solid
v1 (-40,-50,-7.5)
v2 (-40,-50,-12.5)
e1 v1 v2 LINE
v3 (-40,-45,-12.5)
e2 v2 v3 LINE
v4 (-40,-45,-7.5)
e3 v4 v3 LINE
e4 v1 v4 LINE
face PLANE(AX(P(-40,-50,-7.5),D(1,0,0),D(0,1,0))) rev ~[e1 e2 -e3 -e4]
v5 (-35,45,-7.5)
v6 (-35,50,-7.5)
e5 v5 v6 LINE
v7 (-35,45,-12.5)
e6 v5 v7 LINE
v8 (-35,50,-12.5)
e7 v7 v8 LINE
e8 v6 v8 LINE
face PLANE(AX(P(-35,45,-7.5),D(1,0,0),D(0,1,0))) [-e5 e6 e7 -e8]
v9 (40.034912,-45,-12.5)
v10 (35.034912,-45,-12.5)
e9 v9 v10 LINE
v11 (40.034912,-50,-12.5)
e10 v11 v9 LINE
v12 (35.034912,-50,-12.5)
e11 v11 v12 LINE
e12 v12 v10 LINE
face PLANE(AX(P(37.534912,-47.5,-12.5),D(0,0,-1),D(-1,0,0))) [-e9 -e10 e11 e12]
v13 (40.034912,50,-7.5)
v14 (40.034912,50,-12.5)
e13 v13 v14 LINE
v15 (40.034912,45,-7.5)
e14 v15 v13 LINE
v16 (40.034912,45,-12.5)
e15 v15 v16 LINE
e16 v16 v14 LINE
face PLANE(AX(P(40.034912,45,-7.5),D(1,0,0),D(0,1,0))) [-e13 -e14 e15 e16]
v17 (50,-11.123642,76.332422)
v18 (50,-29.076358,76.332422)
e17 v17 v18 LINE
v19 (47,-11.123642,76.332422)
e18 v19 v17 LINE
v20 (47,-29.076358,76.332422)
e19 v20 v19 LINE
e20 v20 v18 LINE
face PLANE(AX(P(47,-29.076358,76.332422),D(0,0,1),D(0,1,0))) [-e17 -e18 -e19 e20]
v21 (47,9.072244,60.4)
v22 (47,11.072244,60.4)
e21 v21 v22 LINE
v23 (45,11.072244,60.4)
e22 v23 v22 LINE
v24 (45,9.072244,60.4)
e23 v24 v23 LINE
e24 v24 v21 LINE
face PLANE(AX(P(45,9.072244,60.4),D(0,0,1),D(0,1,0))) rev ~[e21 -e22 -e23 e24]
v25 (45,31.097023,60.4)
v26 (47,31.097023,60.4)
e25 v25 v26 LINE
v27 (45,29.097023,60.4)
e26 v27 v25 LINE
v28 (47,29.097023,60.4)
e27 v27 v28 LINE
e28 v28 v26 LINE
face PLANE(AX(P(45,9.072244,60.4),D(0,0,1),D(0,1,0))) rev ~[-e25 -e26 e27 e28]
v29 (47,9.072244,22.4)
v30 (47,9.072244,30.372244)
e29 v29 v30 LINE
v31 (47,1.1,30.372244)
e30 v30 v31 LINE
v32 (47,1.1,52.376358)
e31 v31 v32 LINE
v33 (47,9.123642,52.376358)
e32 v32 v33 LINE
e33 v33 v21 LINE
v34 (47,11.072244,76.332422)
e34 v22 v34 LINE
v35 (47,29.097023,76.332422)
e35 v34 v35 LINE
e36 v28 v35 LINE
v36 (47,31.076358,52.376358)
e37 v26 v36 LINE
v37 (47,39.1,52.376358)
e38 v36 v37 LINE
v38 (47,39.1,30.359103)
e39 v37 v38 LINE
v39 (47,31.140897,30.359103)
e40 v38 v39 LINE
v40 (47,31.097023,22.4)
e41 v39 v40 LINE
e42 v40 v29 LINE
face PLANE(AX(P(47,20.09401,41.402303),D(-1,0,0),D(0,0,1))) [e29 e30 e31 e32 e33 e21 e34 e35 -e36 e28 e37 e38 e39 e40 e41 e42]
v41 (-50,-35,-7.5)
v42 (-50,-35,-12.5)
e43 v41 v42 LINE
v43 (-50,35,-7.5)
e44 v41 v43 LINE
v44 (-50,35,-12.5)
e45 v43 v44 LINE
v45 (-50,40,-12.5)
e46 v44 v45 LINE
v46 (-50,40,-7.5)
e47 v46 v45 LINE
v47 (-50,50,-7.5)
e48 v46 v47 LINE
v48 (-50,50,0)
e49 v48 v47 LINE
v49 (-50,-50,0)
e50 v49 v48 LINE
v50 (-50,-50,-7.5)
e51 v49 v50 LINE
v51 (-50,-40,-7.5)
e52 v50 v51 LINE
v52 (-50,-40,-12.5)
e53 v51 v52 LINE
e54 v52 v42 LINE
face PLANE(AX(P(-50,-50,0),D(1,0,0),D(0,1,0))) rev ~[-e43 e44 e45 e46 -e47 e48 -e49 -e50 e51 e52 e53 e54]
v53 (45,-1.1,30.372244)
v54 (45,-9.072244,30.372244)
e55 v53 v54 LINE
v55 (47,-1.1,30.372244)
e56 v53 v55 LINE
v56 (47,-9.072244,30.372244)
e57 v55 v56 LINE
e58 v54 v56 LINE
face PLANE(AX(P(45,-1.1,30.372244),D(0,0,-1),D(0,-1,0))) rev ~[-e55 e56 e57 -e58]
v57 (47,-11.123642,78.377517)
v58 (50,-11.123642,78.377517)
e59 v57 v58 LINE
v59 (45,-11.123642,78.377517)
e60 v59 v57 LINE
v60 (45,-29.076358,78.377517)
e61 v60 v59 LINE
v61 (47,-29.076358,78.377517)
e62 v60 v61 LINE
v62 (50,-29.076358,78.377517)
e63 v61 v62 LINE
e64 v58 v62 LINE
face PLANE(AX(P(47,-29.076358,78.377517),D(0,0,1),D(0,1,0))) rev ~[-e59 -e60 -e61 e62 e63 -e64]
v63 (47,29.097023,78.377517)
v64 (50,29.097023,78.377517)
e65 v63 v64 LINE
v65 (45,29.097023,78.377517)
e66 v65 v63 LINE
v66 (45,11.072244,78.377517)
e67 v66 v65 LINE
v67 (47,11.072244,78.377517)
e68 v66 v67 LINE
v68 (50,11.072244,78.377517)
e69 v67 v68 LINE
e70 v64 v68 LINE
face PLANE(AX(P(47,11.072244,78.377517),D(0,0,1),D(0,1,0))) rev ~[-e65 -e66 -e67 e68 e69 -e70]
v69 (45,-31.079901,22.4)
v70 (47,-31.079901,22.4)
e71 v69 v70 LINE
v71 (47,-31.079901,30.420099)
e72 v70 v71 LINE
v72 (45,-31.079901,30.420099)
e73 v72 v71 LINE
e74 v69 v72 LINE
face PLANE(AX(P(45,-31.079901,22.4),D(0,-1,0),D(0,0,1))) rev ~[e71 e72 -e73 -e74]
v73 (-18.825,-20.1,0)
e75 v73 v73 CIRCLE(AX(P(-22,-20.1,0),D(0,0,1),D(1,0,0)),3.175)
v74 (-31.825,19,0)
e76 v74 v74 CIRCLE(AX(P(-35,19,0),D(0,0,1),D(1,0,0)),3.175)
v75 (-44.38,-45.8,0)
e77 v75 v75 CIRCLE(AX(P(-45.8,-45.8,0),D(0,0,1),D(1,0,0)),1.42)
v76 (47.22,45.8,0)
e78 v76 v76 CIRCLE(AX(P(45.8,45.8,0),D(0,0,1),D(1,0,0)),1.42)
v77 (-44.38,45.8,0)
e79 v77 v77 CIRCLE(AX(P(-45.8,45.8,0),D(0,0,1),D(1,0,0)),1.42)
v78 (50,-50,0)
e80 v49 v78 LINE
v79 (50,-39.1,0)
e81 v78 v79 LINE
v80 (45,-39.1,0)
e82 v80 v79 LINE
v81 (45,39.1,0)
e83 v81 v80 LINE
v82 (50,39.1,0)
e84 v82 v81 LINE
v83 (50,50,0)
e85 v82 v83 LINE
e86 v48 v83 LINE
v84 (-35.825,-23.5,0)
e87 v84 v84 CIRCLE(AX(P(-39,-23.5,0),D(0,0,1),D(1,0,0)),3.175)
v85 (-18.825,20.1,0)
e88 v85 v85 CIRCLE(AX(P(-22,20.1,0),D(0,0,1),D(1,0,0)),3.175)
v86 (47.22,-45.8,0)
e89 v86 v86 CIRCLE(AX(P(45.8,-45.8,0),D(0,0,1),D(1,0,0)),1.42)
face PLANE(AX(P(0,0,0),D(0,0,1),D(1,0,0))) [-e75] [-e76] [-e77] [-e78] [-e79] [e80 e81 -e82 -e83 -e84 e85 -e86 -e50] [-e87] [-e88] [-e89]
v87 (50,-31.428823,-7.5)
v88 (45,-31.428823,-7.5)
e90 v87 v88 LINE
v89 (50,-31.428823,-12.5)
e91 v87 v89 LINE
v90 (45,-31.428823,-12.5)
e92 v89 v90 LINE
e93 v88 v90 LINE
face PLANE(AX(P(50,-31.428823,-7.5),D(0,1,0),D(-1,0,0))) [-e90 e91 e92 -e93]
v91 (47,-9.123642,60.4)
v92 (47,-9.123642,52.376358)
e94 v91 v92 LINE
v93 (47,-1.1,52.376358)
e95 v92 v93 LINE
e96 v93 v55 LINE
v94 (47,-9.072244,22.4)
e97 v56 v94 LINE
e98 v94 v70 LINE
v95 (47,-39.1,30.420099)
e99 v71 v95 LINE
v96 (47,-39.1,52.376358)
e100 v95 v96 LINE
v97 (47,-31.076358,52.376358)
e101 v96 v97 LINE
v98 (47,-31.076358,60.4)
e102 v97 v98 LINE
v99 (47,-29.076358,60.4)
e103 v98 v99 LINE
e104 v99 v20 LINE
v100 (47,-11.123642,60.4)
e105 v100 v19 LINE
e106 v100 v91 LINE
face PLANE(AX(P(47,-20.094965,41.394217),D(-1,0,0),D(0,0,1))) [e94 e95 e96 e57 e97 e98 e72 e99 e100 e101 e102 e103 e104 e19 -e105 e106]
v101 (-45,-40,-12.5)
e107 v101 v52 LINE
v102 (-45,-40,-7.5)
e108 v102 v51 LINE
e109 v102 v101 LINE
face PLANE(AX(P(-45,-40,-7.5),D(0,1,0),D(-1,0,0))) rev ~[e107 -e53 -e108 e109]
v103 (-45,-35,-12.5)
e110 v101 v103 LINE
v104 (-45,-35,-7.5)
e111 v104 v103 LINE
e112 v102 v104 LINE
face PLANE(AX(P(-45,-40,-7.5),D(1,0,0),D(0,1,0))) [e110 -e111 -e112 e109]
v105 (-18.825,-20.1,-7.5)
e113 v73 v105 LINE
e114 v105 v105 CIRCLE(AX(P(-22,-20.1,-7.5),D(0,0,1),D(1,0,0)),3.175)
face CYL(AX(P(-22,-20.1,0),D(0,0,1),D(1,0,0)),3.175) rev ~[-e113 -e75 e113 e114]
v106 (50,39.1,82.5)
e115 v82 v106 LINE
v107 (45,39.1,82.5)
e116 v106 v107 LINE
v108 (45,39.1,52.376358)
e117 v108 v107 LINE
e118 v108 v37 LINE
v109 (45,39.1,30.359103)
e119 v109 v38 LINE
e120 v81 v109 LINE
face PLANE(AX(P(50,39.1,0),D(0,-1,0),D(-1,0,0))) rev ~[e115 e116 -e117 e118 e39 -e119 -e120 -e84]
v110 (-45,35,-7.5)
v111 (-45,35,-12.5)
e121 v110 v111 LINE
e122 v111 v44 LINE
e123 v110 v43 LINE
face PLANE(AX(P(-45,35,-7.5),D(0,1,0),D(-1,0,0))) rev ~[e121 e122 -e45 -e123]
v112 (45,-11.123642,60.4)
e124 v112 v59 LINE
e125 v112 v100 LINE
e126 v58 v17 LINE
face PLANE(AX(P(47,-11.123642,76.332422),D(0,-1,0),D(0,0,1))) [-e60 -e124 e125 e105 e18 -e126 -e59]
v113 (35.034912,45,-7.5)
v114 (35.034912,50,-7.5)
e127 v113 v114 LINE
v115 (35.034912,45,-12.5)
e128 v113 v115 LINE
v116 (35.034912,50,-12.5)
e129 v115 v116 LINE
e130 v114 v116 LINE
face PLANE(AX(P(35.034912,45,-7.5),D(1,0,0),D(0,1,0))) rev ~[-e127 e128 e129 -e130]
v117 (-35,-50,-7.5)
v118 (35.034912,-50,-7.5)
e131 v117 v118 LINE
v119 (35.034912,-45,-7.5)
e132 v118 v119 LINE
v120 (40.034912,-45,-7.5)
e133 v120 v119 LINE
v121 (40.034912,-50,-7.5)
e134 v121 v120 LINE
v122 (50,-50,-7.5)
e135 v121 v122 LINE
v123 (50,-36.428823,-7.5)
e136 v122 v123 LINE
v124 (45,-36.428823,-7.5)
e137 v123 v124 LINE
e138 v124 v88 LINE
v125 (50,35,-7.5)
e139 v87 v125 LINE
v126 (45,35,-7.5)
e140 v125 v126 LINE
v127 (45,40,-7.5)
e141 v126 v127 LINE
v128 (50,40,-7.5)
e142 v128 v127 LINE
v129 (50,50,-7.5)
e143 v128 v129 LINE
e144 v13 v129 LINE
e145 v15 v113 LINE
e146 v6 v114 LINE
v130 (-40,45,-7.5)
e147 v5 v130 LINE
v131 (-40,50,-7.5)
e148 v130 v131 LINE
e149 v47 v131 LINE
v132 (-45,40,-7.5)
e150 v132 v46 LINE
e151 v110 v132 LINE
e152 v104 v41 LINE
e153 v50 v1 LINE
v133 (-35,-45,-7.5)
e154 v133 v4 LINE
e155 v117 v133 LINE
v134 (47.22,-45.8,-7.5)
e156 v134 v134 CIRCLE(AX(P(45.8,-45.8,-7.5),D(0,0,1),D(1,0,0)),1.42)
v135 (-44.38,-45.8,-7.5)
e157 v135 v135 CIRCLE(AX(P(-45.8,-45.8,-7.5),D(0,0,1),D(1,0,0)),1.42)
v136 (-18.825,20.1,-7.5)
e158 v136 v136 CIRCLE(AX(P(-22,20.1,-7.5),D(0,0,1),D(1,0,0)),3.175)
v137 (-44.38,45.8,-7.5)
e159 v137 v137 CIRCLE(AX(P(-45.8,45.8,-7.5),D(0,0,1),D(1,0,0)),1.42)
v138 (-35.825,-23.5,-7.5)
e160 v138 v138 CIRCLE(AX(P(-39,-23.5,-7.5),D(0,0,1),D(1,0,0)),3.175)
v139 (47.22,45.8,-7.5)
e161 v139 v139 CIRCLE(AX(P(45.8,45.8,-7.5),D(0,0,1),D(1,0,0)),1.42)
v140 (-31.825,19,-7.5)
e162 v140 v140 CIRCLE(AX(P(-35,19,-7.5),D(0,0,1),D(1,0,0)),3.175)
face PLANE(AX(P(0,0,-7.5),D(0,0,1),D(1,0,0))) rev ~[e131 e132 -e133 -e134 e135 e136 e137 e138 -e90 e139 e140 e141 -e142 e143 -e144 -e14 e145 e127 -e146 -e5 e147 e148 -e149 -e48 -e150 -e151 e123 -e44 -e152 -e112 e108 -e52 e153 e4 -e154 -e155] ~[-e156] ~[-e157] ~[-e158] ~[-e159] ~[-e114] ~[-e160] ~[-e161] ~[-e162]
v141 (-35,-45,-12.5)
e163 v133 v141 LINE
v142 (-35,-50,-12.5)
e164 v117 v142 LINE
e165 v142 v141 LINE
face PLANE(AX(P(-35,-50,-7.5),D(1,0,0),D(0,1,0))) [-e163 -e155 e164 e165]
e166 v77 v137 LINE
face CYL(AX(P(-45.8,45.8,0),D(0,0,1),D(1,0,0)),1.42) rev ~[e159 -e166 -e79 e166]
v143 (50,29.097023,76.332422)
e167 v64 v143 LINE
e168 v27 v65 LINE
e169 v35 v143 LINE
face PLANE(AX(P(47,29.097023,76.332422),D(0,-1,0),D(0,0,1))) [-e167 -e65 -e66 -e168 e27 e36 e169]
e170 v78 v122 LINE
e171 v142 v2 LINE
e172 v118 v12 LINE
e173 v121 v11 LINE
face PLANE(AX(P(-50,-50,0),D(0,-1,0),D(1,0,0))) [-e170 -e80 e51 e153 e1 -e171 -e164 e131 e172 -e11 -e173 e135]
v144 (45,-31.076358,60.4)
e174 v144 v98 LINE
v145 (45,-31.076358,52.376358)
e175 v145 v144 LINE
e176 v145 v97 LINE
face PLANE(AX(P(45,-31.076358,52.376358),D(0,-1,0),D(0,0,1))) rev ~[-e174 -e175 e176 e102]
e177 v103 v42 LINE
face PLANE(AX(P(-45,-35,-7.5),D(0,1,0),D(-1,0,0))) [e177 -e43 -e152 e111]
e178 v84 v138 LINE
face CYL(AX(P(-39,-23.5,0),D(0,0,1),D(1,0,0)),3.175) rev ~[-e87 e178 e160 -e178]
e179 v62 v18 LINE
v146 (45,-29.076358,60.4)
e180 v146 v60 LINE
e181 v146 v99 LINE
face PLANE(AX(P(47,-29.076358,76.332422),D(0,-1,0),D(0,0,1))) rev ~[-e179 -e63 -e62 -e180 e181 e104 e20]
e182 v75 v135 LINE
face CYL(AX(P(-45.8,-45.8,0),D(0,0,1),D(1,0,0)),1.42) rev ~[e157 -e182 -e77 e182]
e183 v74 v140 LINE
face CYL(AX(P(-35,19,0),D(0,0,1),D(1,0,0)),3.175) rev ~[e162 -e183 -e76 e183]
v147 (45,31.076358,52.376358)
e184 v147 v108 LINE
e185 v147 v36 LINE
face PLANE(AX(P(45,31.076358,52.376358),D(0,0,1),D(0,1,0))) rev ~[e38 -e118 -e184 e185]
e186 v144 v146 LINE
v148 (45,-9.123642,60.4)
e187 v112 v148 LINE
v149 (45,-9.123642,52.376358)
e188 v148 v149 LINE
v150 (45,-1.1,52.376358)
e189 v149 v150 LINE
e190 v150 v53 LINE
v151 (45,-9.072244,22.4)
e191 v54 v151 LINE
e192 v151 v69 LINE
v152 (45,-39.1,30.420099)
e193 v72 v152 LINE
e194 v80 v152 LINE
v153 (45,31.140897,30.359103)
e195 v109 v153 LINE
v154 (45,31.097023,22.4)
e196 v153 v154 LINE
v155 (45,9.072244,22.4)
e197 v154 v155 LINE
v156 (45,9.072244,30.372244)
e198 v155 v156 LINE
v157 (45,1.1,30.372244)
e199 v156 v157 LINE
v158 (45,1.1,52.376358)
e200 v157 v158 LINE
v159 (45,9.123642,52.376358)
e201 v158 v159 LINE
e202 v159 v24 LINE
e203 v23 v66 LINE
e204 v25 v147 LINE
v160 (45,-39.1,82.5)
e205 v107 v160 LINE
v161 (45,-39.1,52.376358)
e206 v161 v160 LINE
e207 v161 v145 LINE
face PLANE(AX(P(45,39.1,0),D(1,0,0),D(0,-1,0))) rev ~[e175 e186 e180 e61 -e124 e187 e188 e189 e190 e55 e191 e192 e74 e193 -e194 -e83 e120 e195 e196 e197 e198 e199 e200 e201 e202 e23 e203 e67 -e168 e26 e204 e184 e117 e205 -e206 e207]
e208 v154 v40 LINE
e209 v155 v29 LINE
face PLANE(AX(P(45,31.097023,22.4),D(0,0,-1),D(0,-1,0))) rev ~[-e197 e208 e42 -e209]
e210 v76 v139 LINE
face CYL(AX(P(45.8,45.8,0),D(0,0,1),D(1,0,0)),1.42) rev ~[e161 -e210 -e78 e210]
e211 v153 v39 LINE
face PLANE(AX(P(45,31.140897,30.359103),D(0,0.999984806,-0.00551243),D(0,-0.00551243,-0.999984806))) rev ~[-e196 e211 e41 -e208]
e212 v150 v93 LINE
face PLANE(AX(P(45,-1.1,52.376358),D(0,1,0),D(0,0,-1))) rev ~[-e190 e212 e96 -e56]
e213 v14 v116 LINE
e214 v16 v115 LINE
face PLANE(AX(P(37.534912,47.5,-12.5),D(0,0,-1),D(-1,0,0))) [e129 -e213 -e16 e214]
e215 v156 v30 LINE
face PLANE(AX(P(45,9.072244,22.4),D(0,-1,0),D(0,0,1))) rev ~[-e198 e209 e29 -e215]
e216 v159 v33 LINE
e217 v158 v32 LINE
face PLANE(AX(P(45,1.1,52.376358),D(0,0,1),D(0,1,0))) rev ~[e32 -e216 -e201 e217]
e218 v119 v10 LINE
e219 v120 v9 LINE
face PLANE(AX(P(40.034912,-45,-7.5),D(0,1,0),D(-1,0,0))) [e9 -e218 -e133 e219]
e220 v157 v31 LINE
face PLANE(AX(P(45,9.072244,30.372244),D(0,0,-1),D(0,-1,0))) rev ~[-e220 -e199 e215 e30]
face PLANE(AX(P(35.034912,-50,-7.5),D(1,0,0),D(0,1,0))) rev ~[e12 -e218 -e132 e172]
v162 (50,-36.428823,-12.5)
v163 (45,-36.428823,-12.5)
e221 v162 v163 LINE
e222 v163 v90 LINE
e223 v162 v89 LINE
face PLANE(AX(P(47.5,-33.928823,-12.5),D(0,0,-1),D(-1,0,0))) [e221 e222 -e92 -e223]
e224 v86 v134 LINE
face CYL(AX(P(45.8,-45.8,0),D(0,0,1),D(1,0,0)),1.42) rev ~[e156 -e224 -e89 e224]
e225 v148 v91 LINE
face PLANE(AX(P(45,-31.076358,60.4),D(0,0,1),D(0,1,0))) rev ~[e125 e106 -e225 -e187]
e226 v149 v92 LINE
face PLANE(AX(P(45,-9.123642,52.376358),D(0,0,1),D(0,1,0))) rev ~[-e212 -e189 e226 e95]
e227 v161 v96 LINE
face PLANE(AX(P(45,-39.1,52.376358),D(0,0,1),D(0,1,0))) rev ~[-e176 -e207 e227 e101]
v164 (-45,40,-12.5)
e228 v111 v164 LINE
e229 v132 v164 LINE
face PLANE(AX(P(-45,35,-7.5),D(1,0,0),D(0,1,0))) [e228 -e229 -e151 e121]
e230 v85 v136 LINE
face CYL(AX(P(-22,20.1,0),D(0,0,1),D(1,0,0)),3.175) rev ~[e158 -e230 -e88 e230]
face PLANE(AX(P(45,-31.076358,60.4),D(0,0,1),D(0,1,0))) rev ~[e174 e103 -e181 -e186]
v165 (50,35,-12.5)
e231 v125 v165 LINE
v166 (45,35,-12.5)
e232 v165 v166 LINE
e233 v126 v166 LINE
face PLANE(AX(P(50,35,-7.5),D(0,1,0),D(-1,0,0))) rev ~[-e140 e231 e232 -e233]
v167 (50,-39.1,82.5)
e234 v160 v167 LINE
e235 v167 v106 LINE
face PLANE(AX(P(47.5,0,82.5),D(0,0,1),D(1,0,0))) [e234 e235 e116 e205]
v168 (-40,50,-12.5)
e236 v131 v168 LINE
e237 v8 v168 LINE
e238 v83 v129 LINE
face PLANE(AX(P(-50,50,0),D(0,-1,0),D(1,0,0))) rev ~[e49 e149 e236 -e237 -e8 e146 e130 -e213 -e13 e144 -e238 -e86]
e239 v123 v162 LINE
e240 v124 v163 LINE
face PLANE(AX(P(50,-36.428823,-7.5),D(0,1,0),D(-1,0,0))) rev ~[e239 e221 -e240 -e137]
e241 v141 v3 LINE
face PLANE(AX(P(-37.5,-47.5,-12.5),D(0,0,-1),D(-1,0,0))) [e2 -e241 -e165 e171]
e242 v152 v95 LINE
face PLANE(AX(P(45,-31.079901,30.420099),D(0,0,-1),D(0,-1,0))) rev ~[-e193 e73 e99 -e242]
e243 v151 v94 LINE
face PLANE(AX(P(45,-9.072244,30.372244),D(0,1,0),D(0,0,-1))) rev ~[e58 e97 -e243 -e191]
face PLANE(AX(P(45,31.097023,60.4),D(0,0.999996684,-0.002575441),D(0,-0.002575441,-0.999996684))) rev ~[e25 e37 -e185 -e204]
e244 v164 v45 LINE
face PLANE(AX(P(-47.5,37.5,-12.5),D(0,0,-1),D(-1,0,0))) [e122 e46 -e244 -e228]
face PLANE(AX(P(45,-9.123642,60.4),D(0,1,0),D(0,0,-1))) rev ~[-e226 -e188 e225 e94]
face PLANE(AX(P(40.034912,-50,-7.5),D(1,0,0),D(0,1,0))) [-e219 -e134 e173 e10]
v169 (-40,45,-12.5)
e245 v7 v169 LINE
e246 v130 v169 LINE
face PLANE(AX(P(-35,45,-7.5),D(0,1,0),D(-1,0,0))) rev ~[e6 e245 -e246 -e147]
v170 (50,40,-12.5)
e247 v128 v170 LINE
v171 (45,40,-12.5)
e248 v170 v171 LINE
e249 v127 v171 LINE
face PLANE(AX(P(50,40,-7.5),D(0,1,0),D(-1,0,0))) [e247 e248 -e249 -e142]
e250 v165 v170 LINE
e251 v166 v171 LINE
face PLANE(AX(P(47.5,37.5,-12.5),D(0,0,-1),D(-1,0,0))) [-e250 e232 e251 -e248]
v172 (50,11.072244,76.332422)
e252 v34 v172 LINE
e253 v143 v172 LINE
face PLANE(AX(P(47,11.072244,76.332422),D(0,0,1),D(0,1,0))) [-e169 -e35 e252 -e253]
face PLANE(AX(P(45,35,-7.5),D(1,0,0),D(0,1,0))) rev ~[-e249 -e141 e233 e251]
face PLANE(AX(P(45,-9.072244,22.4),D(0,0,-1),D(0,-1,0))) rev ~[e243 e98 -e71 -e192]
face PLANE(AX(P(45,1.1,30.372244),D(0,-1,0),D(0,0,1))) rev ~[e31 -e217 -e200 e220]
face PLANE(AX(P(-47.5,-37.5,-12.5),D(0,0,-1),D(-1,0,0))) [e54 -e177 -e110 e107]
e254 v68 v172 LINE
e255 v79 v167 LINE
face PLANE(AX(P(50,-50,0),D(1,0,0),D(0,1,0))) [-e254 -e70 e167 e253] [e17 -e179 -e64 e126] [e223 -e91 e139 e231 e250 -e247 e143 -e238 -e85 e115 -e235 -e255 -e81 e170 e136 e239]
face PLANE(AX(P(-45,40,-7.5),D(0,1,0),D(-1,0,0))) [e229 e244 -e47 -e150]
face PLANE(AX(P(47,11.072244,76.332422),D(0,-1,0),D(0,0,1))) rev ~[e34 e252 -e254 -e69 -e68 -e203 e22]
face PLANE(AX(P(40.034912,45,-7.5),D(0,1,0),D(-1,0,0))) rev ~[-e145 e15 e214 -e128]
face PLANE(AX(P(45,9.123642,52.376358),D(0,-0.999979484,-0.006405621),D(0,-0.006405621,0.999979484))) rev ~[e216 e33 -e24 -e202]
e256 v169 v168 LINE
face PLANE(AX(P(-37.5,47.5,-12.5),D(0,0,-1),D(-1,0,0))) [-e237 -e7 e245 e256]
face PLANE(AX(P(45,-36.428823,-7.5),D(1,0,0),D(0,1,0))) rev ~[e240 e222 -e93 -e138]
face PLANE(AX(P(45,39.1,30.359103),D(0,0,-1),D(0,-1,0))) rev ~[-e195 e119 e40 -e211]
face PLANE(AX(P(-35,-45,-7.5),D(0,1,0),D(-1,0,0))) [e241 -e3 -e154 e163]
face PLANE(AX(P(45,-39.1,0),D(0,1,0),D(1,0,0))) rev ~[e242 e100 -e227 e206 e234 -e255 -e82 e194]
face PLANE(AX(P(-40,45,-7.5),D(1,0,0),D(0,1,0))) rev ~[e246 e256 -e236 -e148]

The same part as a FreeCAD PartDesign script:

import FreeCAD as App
import Part
import Sketcher

doc = App.newDocument("Part")
body = doc.addObject("PartDesign::Body", "Body")

# Sketch on XY plane
sketch1 = body.newObject("Sketcher::SketchObject", "Sketch")
sketch1.AttachmentSupport = (doc.getObject("XY_Plane"), [""])
sketch1.MapMode = "FlatFace"
sketch1.addGeometry(Part.LineSegment(App.Vector(-50, 50, 0), App.Vector(-50, -50, 0)), False)
sketch1.addGeometry(Part.LineSegment(App.Vector(-50, -50, 0), App.Vector(50, -50, 0)), False)
sketch1.addGeometry(Part.LineSegment(App.Vector(50, -50, 0), App.Vector(50, 50, 0)), False)
sketch1.addGeometry(Part.LineSegment(App.Vector(50, 50, 0), App.Vector(-50, 50, 0)), False)
sketch1.addConstraint(Sketcher.Constraint("Coincident", 0, 2, 1, 1))
sketch1.addConstraint(Sketcher.Constraint("Coincident", 1, 2, 2, 1))
sketch1.addConstraint(Sketcher.Constraint("Coincident", 2, 2, 3, 1))
sketch1.addConstraint(Sketcher.Constraint("Coincident", 3, 2, 0, 1))
sketch1.addConstraint(Sketcher.Constraint("Vertical", 0))
sketch1.addConstraint(Sketcher.Constraint("Horizontal", 1))
sketch1.addConstraint(Sketcher.Constraint("Vertical", 2))
sketch1.addConstraint(Sketcher.Constraint("Horizontal", 3))
sketch1.addConstraint(Sketcher.Constraint("Symmetric", 0, 2, 2, 2, -1, 1))
sketch1.addConstraint(Sketcher.Constraint("Equal", 3, 0))
sketch1.addConstraint(Sketcher.Constraint("DistanceX", 1, 1, 1, 2, 100.0))
pad1 = body.newObject("PartDesign::Pad", "Pad")
pad1.Profile = sketch1
pad1.Length = 7.5
pad1.Reversed = True

# Sketch on XY plane
sketch2 = body.newObject("Sketcher::SketchObject", "Sketch001")
sketch2.AttachmentSupport = (doc.getObject("XY_Plane"), [""])
sketch2.MapMode = "FlatFace"
sketch2.AttachmentOffset = App.Placement(App.Vector(0, 0, -7.5), App.Rotation())
sketch2.addGeometry(Part.LineSegment(App.Vector(40, 50, 0), App.Vector(40, 45, 0)), False)
sketch2.addGeometry(Part.LineSegment(App.Vector(40, 45, 0), App.Vector(35, 45, 0)), False)
sketch2.addGeometry(Part.LineSegment(App.Vector(35, 45, 0), App.Vector(35, 50, 0)), False)
sketch2.addGeometry(Part.LineSegment(App.Vector(35, 50, 0), App.Vector(40, 50, 0)), False)
sketch2.addGeometry(Part.LineSegment(App.Vector(-35, 50, 0), App.Vector(-35, 45, 0)), False)
sketch2.addGeometry(Part.LineSegment(App.Vector(-35, 45, 0), App.Vector(-40, 45, 0)), False)
sketch2.addGeometry(Part.LineSegment(App.Vector(-40, 45, 0), App.Vector(-40, 50, 0)), False)
sketch2.addGeometry(Part.LineSegment(App.Vector(-40, 50, 0), App.Vector(-35, 50, 0)), False)
sketch2.addGeometry(Part.LineSegment(App.Vector(-45, 40, 0), App.Vector(-45, 35, 0)), False)
sketch2.addGeometry(Part.LineSegment(App.Vector(-45, 35, 0), App.Vector(-50, 35, 0)), False)
sketch2.addGeometry(Part.LineSegment(App.Vector(-50, 35, 0), App.Vector(-50, 40, 0)), False)
sketch2.addGeometry(Part.LineSegment(App.Vector(-50, 40, 0), App.Vector(-45, 40, 0)), False)
sketch2.addGeometry(Part.LineSegment(App.Vector(-45, -35, 0), App.Vector(-45, -40, 0)), False)
sketch2.addGeometry(Part.LineSegment(App.Vector(-45, -40, 0), App.Vector(-50, -40, 0)), False)
sketch2.addGeometry(Part.LineSegment(App.Vector(-50, -40, 0), App.Vector(-50, -35, 0)), False)
sketch2.addGeometry(Part.LineSegment(App.Vector(-50, -35, 0), App.Vector(-45, -35, 0)), False)
sketch2.addGeometry(Part.LineSegment(App.Vector(-35, -45, 0), App.Vector(-35, -50, 0)), False)
sketch2.addGeometry(Part.LineSegment(App.Vector(-35, -50, 0), App.Vector(-40, -50, 0)), False)
sketch2.addGeometry(Part.LineSegment(App.Vector(-40, -50, 0), App.Vector(-40, -45, 0)), False)
sketch2.addGeometry(Part.LineSegment(App.Vector(-40, -45, 0), App.Vector(-35, -45, 0)), False)
sketch2.addGeometry(Part.LineSegment(App.Vector(40, -45, 0), App.Vector(40, -50, 0)), False)
sketch2.addGeometry(Part.LineSegment(App.Vector(40, -50, 0), App.Vector(35, -50, 0)), False)
sketch2.addGeometry(Part.LineSegment(App.Vector(35, -50, 0), App.Vector(35, -45, 0)), False)
sketch2.addGeometry(Part.LineSegment(App.Vector(35, -45, 0), App.Vector(40, -45, 0)), False)
sketch2.addGeometry(Part.LineSegment(App.Vector(50, -31, 0), App.Vector(50, -36, 0)), False)
sketch2.addGeometry(Part.LineSegment(App.Vector(50, -36, 0), App.Vector(45, -36, 0)), False)
sketch2.addGeometry(Part.LineSegment(App.Vector(45, -36, 0), App.Vector(45, -31, 0)), False)
sketch2.addGeometry(Part.LineSegment(App.Vector(45, -31, 0), App.Vector(50, -31, 0)), False)
sketch2.addGeometry(Part.LineSegment(App.Vector(50, 40, 0), App.Vector(50, 35, 0)), False)
sketch2.addGeometry(Part.LineSegment(App.Vector(50, 35, 0), App.Vector(45, 35, 0)), False)
sketch2.addGeometry(Part.LineSegment(App.Vector(45, 35, 0), App.Vector(45, 40, 0)), False)
sketch2.addGeometry(Part.LineSegment(App.Vector(45, 40, 0), App.Vector(50, 40, 0)), False)
sketch2.addConstraint(Sketcher.Constraint("Coincident", 0, 2, 1, 1))
sketch2.addConstraint(Sketcher.Constraint("Coincident", 1, 2, 2, 1))
sketch2.addConstraint(Sketcher.Constraint("Coincident", 2, 2, 3, 1))
sketch2.addConstraint(Sketcher.Constraint("Coincident", 3, 2, 0, 1))
sketch2.addConstraint(Sketcher.Constraint("Coincident", 4, 2, 5, 1))
sketch2.addConstraint(Sketcher.Constraint("Coincident", 5, 2, 6, 1))
sketch2.addConstraint(Sketcher.Constraint("Coincident", 6, 2, 7, 1))
sketch2.addConstraint(Sketcher.Constraint("Coincident", 7, 2, 4, 1))
sketch2.addConstraint(Sketcher.Constraint("Coincident", 8, 2, 9, 1))
sketch2.addConstraint(Sketcher.Constraint("Coincident", 9, 2, 10, 1))
sketch2.addConstraint(Sketcher.Constraint("Coincident", 10, 2, 11, 1))
sketch2.addConstraint(Sketcher.Constraint("Coincident", 11, 2, 8, 1))
sketch2.addConstraint(Sketcher.Constraint("Coincident", 12, 2, 13, 1))
sketch2.addConstraint(Sketcher.Constraint("Coincident", 13, 2, 14, 1))
sketch2.addConstraint(Sketcher.Constraint("Coincident", 14, 2, 15, 1))
sketch2.addConstraint(Sketcher.Constraint("Coincident", 15, 2, 12, 1))
sketch2.addConstraint(Sketcher.Constraint("Coincident", 16, 2, 17, 1))
sketch2.addConstraint(Sketcher.Constraint("Coincident", 17, 2, 18, 1))
sketch2.addConstraint(Sketcher.Constraint("Coincident", 18, 2, 19, 1))
sketch2.addConstraint(Sketcher.Constraint("Coincident", 19, 2, 16, 1))
sketch2.addConstraint(Sketcher.Constraint("Coincident", 20, 2, 21, 1))
sketch2.addConstraint(Sketcher.Constraint("Coincident", 21, 2, 22, 1))
sketch2.addConstraint(Sketcher.Constraint("Coincident", 22, 2, 23, 1))
sketch2.addConstraint(Sketcher.Constraint("Coincident", 23, 2, 20, 1))
sketch2.addConstraint(Sketcher.Constraint("Coincident", 24, 2, 25, 1))
sketch2.addConstraint(Sketcher.Constraint("Coincident", 25, 2, 26, 1))
sketch2.addConstraint(Sketcher.Constraint("Coincident", 26, 2, 27, 1))
sketch2.addConstraint(Sketcher.Constraint("Coincident", 27, 2, 24, 1))
sketch2.addConstraint(Sketcher.Constraint("Coincident", 28, 2, 29, 1))
sketch2.addConstraint(Sketcher.Constraint("Coincident", 29, 2, 30, 1))
sketch2.addConstraint(Sketcher.Constraint("Coincident", 30, 2, 31, 1))
sketch2.addConstraint(Sketcher.Constraint("Coincident", 31, 2, 28, 1))
sketch2.addConstraint(Sketcher.Constraint("Vertical", 0))
sketch2.addConstraint(Sketcher.Constraint("Horizontal", 1))
sketch2.addConstraint(Sketcher.Constraint("Vertical", 2))
sketch2.addConstraint(Sketcher.Constraint("Horizontal", 3))
sketch2.addConstraint(Sketcher.Constraint("Vertical", 4))
sketch2.addConstraint(Sketcher.Constraint("Horizontal", 5))
sketch2.addConstraint(Sketcher.Constraint("Vertical", 6))
sketch2.addConstraint(Sketcher.Constraint("Horizontal", 7))
sketch2.addConstraint(Sketcher.Constraint("Vertical", 8))
sketch2.addConstraint(Sketcher.Constraint("Horizontal", 9))
sketch2.addConstraint(Sketcher.Constraint("Vertical", 10))
sketch2.addConstraint(Sketcher.Constraint("Horizontal", 11))
sketch2.addConstraint(Sketcher.Constraint("Vertical", 12))
sketch2.addConstraint(Sketcher.Constraint("Horizontal", 13))
sketch2.addConstraint(Sketcher.Constraint("Vertical", 14))
sketch2.addConstraint(Sketcher.Constraint("Horizontal", 15))
sketch2.addConstraint(Sketcher.Constraint("Vertical", 16))
sketch2.addConstraint(Sketcher.Constraint("Horizontal", 17))
sketch2.addConstraint(Sketcher.Constraint("Vertical", 18))
sketch2.addConstraint(Sketcher.Constraint("Horizontal", 19))
sketch2.addConstraint(Sketcher.Constraint("Vertical", 20))
sketch2.addConstraint(Sketcher.Constraint("Horizontal", 21))
sketch2.addConstraint(Sketcher.Constraint("Vertical", 22))
sketch2.addConstraint(Sketcher.Constraint("Horizontal", 23))
sketch2.addConstraint(Sketcher.Constraint("Vertical", 24))
sketch2.addConstraint(Sketcher.Constraint("Horizontal", 25))
sketch2.addConstraint(Sketcher.Constraint("Vertical", 26))
sketch2.addConstraint(Sketcher.Constraint("Horizontal", 27))
sketch2.addConstraint(Sketcher.Constraint("Vertical", 28))
sketch2.addConstraint(Sketcher.Constraint("Horizontal", 29))
sketch2.addConstraint(Sketcher.Constraint("Vertical", 30))
sketch2.addConstraint(Sketcher.Constraint("Horizontal", 31))
sketch2.addConstraint(Sketcher.Constraint("Symmetric", 14, 2, 28, 2, -1, 1))
sketch2.addConstraint(Sketcher.Constraint("Symmetric", 12, 2, 30, 2, -1, 1))
sketch2.addConstraint(Sketcher.Constraint("Symmetric", 9, 2, 28, 2, -2))
sketch2.addConstraint(Sketcher.Constraint("Symmetric", 11, 2, 30, 2, -2))
sketch2.addConstraint(Sketcher.Constraint("Symmetric", 7, 2, 16, 2, -1))
sketch2.addConstraint(Sketcher.Constraint("Symmetric", 5, 2, 18, 2, -1))
sketch2.addConstraint(Sketcher.Constraint("Symmetric", 3, 2, 20, 2, -1))
sketch2.addConstraint(Sketcher.Constraint("Symmetric", 1, 2, 22, 2, -1))
sketch2.addConstraint(Sketcher.Constraint("Horizontal", 1, 2, 4, 2))
sketch2.addConstraint(Sketcher.Constraint("Horizontal", 3, 2, 6, 2))
sketch2.addConstraint(Sketcher.Constraint("Vertical", 27, 2, 28, 2))
sketch2.addConstraint(Sketcher.Constraint("Vertical", 26, 2, 29, 2))
sketch2.addConstraint(Sketcher.Constraint("Equal", 3, 5))
sketch2.addConstraint(Sketcher.Constraint("Equal", 7, 9))
sketch2.addConstraint(Sketcher.Constraint("Equal", 31, 0))
sketch2.addConstraint(Sketcher.Constraint("Equal", 6, 8))
sketch2.addConstraint(Sketcher.Constraint("Equal", 22, 24))
sketch2.addConstraint(Sketcher.Constraint("DistanceX", 1, 2, 1, 1, 5.0))
sketch2.addConstraint(Sketcher.Constraint("DistanceY", -1, 1, 0, 2, 45.0))
sketch2.addConstraint(Sketcher.Constraint("DistanceX", 4, 2, -1, 1, 35.0))
sketch2.addConstraint(Sketcher.Constraint("DistanceX", 8, 2, -1, 1, 45.0))
sketch2.addConstraint(Sketcher.Constraint("DistanceY", -1, 1, 8, 2, 35.0))
sketch2.addConstraint(Sketcher.Constraint("DistanceX", -1, 1, 0, 2, 40.034912))
sketch2.addConstraint(Sketcher.Constraint("DistanceY", 24, 2, -1, 1, 36.428823))
pad2 = body.newObject("PartDesign::Pad", "Pad001")
pad2.Profile = sketch2
pad2.Length = 5
pad2.Reversed = True

# Sketch on XY plane
sketch3 = body.newObject("Sketcher::SketchObject", "Sketch002")
sketch3.AttachmentSupport = (doc.getObject("XY_Plane"), [""])
sketch3.MapMode = "FlatFace"
sketch3.addGeometry(Part.Circle(App.Vector(-35, 19, 0), App.Vector(0, 0, 1), 3.2), False)
sketch3.addGeometry(Part.Circle(App.Vector(-39, -23.5, 0), App.Vector(0, 0, 1), 3.2), False)
sketch3.addGeometry(Part.Circle(App.Vector(-45.8, 45.8, 0), App.Vector(0, 0, 1), 1.4), False)
sketch3.addGeometry(Part.Circle(App.Vector(-45.8, -45.8, 0), App.Vector(0, 0, 1), 1.4), False)
sketch3.addGeometry(Part.Circle(App.Vector(45.8, -45.8, 0), App.Vector(0, 0, 1), 1.4), False)
sketch3.addGeometry(Part.Circle(App.Vector(45.8, 45.8, 0), App.Vector(0, 0, 1), 1.4), False)
sketch3.addGeometry(Part.Circle(App.Vector(-22, 20.1, 0), App.Vector(0, 0, 1), 3.2), False)
sketch3.addGeometry(Part.Circle(App.Vector(-22, -20.1, 0), App.Vector(0, 0, 1), 3.2), False)
sketch3.addConstraint(Sketcher.Constraint("Equal", 0, 1))
sketch3.addConstraint(Sketcher.Constraint("Equal", 2, 3))
sketch3.addConstraint(Sketcher.Constraint("Equal", 3, 4))
sketch3.addConstraint(Sketcher.Constraint("Equal", 4, 5))
sketch3.addConstraint(Sketcher.Constraint("Equal", 1, 6))
sketch3.addConstraint(Sketcher.Constraint("Equal", 6, 7))
sketch3.addConstraint(Sketcher.Constraint("Symmetric", 2, 3, 4, 3, -1, 1))
sketch3.addConstraint(Sketcher.Constraint("Symmetric", 3, 3, 5, 3, -1, 1))
sketch3.addConstraint(Sketcher.Constraint("Symmetric", 3, 3, 4, 3, -2))
sketch3.addConstraint(Sketcher.Constraint("Symmetric", 6, 3, 7, 3, -1))
sketch3.addConstraint(Sketcher.Constraint("Diameter", 0, 6.35))
sketch3.addConstraint(Sketcher.Constraint("Diameter", 2, 2.84))
sketch3.addConstraint(Sketcher.Constraint("DistanceX", 0, 3, -1, 1, 35.0))
sketch3.addConstraint(Sketcher.Constraint("DistanceY", -1, 1, 0, 3, 19.0))
sketch3.addConstraint(Sketcher.Constraint("DistanceX", 1, 3, -1, 1, 39.0))
sketch3.addConstraint(Sketcher.Constraint("DistanceX", 6, 3, -1, 1, 22.0))
sketch3.addConstraint(Sketcher.Constraint("DistanceY", 1, 3, -1, 1, 23.5))
sketch3.addConstraint(Sketcher.Constraint("DistanceX", 2, 3, -1, 1, 45.8))
sketch3.addConstraint(Sketcher.Constraint("DistanceY", -1, 1, 2, 3, 45.8))
sketch3.addConstraint(Sketcher.Constraint("DistanceY", -1, 1, 6, 3, 20.1))
pocket1 = body.newObject("PartDesign::Pocket", "Pocket")
pocket1.Profile = sketch3
pocket1.Length = 10

# Sketch on XY plane
sketch4 = body.newObject("Sketcher::SketchObject", "Sketch003")
sketch4.AttachmentSupport = (doc.getObject("XY_Plane"), [""])
sketch4.MapMode = "FlatFace"
sketch4.addGeometry(Part.LineSegment(App.Vector(50, 39, 0), App.Vector(45, 39, 0)), False)
sketch4.addGeometry(Part.LineSegment(App.Vector(45, 39, 0), App.Vector(45, -39, 0)), False)
sketch4.addGeometry(Part.LineSegment(App.Vector(45, -39, 0), App.Vector(50, -39, 0)), False)
sketch4.addGeometry(Part.LineSegment(App.Vector(50, -39, 0), App.Vector(50, 39, 0)), False)
sketch4.addConstraint(Sketcher.Constraint("Coincident", 0, 2, 1, 1))
sketch4.addConstraint(Sketcher.Constraint("Coincident", 1, 2, 2, 1))
sketch4.addConstraint(Sketcher.Constraint("Coincident", 2, 2, 3, 1))
sketch4.addConstraint(Sketcher.Constraint("Coincident", 3, 2, 0, 1))
sketch4.addConstraint(Sketcher.Constraint("Horizontal", 0))
sketch4.addConstraint(Sketcher.Constraint("Vertical", 1))
sketch4.addConstraint(Sketcher.Constraint("Horizontal", 2))
sketch4.addConstraint(Sketcher.Constraint("Vertical", 3))
sketch4.addConstraint(Sketcher.Constraint("DistanceX", 0, 2, 0, 1, 5.0))
sketch4.addConstraint(Sketcher.Constraint("DistanceY", 1, 2, 1, 1, 78.2))
sketch4.addConstraint(Sketcher.Constraint("DistanceX", -1, 1, 0, 2, 45.0))
sketch4.addConstraint(Sketcher.Constraint("DistanceY", -1, 1, 0, 2, 39.1))
pad3 = body.newObject("PartDesign::Pad", "Pad002")
pad3.Profile = sketch4
pad3.Length = 82.5

# Sketch on YZ plane
sketch5 = body.newObject("Sketcher::SketchObject", "Sketch004")
sketch5.AttachmentSupport = (doc.getObject("YZ_Plane"), [""])
sketch5.MapMode = "FlatFace"
sketch5.AttachmentOffset = App.Placement(App.Vector(0, 0, 45), App.Rotation())
sketch5.addGeometry(Part.LineSegment(App.Vector(39, 52, 0), App.Vector(39, 30, 0)), False)
sketch5.addGeometry(Part.LineSegment(App.Vector(39, 30, 0), App.Vector(31, 30, 0)), False)
sketch5.addGeometry(Part.LineSegment(App.Vector(31, 30, 0), App.Vector(31, 22, 0)), False)
sketch5.addGeometry(Part.LineSegment(App.Vector(31, 22, 0), App.Vector(9, 22, 0)), False)
sketch5.addGeometry(Part.LineSegment(App.Vector(9, 22, 0), App.Vector(9, 30, 0)), False)
sketch5.addGeometry(Part.LineSegment(App.Vector(9, 30, 0), App.Vector(1, 30, 0)), False)
sketch5.addGeometry(Part.LineSegment(App.Vector(1, 30, 0), App.Vector(1, 52, 0)), False)
sketch5.addGeometry(Part.LineSegment(App.Vector(1, 52, 0), App.Vector(9, 52, 0)), False)
sketch5.addGeometry(Part.LineSegment(App.Vector(9, 52, 0), App.Vector(9, 60, 0)), False)
sketch5.addGeometry(Part.LineSegment(App.Vector(9, 60, 0), App.Vector(31, 60, 0)), False)
sketch5.addGeometry(Part.LineSegment(App.Vector(31, 60, 0), App.Vector(31, 52, 0)), False)
sketch5.addGeometry(Part.LineSegment(App.Vector(31, 52, 0), App.Vector(39, 52, 0)), False)
sketch5.addGeometry(Part.LineSegment(App.Vector(-1, 52, 0), App.Vector(-1, 30, 0)), False)
sketch5.addGeometry(Part.LineSegment(App.Vector(-1, 30, 0), App.Vector(-9, 30, 0)), False)
sketch5.addGeometry(Part.LineSegment(App.Vector(-9, 30, 0), App.Vector(-9, 22, 0)), False)
sketch5.addGeometry(Part.LineSegment(App.Vector(-9, 22, 0), App.Vector(-31, 22, 0)), False)
sketch5.addGeometry(Part.LineSegment(App.Vector(-31, 22, 0), App.Vector(-31, 30, 0)), False)
sketch5.addGeometry(Part.LineSegment(App.Vector(-31, 30, 0), App.Vector(-39, 30, 0)), False)
sketch5.addGeometry(Part.LineSegment(App.Vector(-39, 30, 0), App.Vector(-39, 52, 0)), False)
sketch5.addGeometry(Part.LineSegment(App.Vector(-39, 52, 0), App.Vector(-31, 52, 0)), False)
sketch5.addGeometry(Part.LineSegment(App.Vector(-31, 52, 0), App.Vector(-31, 60, 0)), False)
sketch5.addGeometry(Part.LineSegment(App.Vector(-31, 60, 0), App.Vector(-9, 60, 0)), False)
sketch5.addGeometry(Part.LineSegment(App.Vector(-9, 60, 0), App.Vector(-9, 52, 0)), False)
sketch5.addGeometry(Part.LineSegment(App.Vector(-9, 52, 0), App.Vector(-1, 52, 0)), False)
sketch5.addConstraint(Sketcher.Constraint("Coincident", 0, 2, 1, 1))
sketch5.addConstraint(Sketcher.Constraint("Coincident", 1, 2, 2, 1))
sketch5.addConstraint(Sketcher.Constraint("Coincident", 2, 2, 3, 1))
sketch5.addConstraint(Sketcher.Constraint("Coincident", 3, 2, 4, 1))
sketch5.addConstraint(Sketcher.Constraint("Coincident", 4, 2, 5, 1))
sketch5.addConstraint(Sketcher.Constraint("Coincident", 5, 2, 6, 1))
sketch5.addConstraint(Sketcher.Constraint("Coincident", 6, 2, 7, 1))
sketch5.addConstraint(Sketcher.Constraint("Coincident", 7, 2, 8, 1))
sketch5.addConstraint(Sketcher.Constraint("Coincident", 8, 2, 9, 1))
sketch5.addConstraint(Sketcher.Constraint("Coincident", 9, 2, 10, 1))
sketch5.addConstraint(Sketcher.Constraint("Coincident", 10, 2, 11, 1))
sketch5.addConstraint(Sketcher.Constraint("Coincident", 11, 2, 0, 1))
sketch5.addConstraint(Sketcher.Constraint("Coincident", 12, 2, 13, 1))
sketch5.addConstraint(Sketcher.Constraint("Coincident", 13, 2, 14, 1))
sketch5.addConstraint(Sketcher.Constraint("Coincident", 14, 2, 15, 1))
sketch5.addConstraint(Sketcher.Constraint("Coincident", 15, 2, 16, 1))
sketch5.addConstraint(Sketcher.Constraint("Coincident", 16, 2, 17, 1))
sketch5.addConstraint(Sketcher.Constraint("Coincident", 17, 2, 18, 1))
sketch5.addConstraint(Sketcher.Constraint("Coincident", 18, 2, 19, 1))
sketch5.addConstraint(Sketcher.Constraint("Coincident", 19, 2, 20, 1))
sketch5.addConstraint(Sketcher.Constraint("Coincident", 20, 2, 21, 1))
sketch5.addConstraint(Sketcher.Constraint("Coincident", 21, 2, 22, 1))
sketch5.addConstraint(Sketcher.Constraint("Coincident", 22, 2, 23, 1))
sketch5.addConstraint(Sketcher.Constraint("Coincident", 23, 2, 12, 1))
sketch5.addConstraint(Sketcher.Constraint("Vertical", 0))
sketch5.addConstraint(Sketcher.Constraint("Horizontal", 1))
sketch5.addConstraint(Sketcher.Constraint("Horizontal", 3))
sketch5.addConstraint(Sketcher.Constraint("Vertical", 4))
sketch5.addConstraint(Sketcher.Constraint("Horizontal", 5))
sketch5.addConstraint(Sketcher.Constraint("Vertical", 6))
sketch5.addConstraint(Sketcher.Constraint("Horizontal", 7))
sketch5.addConstraint(Sketcher.Constraint("Horizontal", 9))
sketch5.addConstraint(Sketcher.Constraint("Horizontal", 11))
sketch5.addConstraint(Sketcher.Constraint("Vertical", 12))
sketch5.addConstraint(Sketcher.Constraint("Horizontal", 13))
sketch5.addConstraint(Sketcher.Constraint("Vertical", 14))
sketch5.addConstraint(Sketcher.Constraint("Horizontal", 15))
sketch5.addConstraint(Sketcher.Constraint("Vertical", 16))
sketch5.addConstraint(Sketcher.Constraint("Horizontal", 17))
sketch5.addConstraint(Sketcher.Constraint("Vertical", 18))
sketch5.addConstraint(Sketcher.Constraint("Horizontal", 19))
sketch5.addConstraint(Sketcher.Constraint("Vertical", 20))
sketch5.addConstraint(Sketcher.Constraint("Horizontal", 21))
sketch5.addConstraint(Sketcher.Constraint("Vertical", 22))
sketch5.addConstraint(Sketcher.Constraint("Horizontal", 23))
sketch5.addConstraint(Sketcher.Constraint("Symmetric", 5, 2, 12, 2, -2))
sketch5.addConstraint(Sketcher.Constraint("Symmetric", 3, 2, 14, 2, -2))
sketch5.addConstraint(Sketcher.Constraint("Symmetric", 11, 2, 18, 2, -2))
sketch5.addConstraint(Sketcher.Constraint("Symmetric", 7, 2, 22, 2, -2))
sketch5.addConstraint(Sketcher.Constraint("Horizontal", 7, 2, 10, 2))
sketch5.addConstraint(Sketcher.Constraint("Horizontal", 9, 2, 20, 2))
sketch5.addConstraint(Sketcher.Constraint("Vertical", 4, 2, 8, 2))
sketch5.addConstraint(Sketcher.Constraint("Vertical", 2, 2, 9, 2))
sketch5.addConstraint(Sketcher.Constraint("Equal", 7, 11))
sketch5.addConstraint(Sketcher.Constraint("Equal", 11, 19))
sketch5.addConstraint(Sketcher.Constraint("Equal", 13, 4))
sketch5.addConstraint(Sketcher.Constraint("Equal", 17, 16))
sketch5.addConstraint(Sketcher.Constraint("Equal", 23, 20))
sketch5.addConstraint(Sketcher.Constraint("DistanceX", 5, 2, 0, 2, 38.0))
sketch5.addConstraint(Sketcher.Constraint("DistanceX", -1, 1, 0, 2, 39.1))
sketch5.addConstraint(Sketcher.Constraint("DistanceY", -1, 1, 2, 2, 22.4))
sketch5.addConstraint(Sketcher.Constraint("DistanceY", -1, 1, 8, 2, 60.4))
sketch5.addConstraint(Sketcher.Constraint("DistanceX", 17, 2, 17, 1, 8.020099))
sketch5.addConstraint(Sketcher.Constraint("DistanceX", 3, 2, 3, 1, 22.024778))
sketch5.addConstraint(Sketcher.Constraint("DistanceX", 7, 1, 7, 2, 8.023642))
sketch5.addConstraint(Sketcher.Constraint("DistanceX", 1, 2, 1, 1, 7.959103))
sketch5.addConstraint(Sketcher.Constraint("DistanceX", 5, 2, 5, 1, 7.972244))
sketch5.addConstraint(Sketcher.Constraint("DistanceY", 0, 2, 0, 1, 22.017256))
pocket2 = body.newObject("PartDesign::Pocket", "Pocket001")
pocket2.Profile = sketch5
pocket2.Length = 2
pocket2.Reversed = True

# Sketch on YZ plane
sketch6 = body.newObject("Sketcher::SketchObject", "Sketch005")
sketch6.AttachmentSupport = (doc.getObject("YZ_Plane"), [""])
sketch6.MapMode = "FlatFace"
sketch6.AttachmentOffset = App.Placement(App.Vector(0, 0, 45), App.Rotation())
sketch6.addGeometry(Part.LineSegment(App.Vector(-11, 60, 0), App.Vector(-29, 60, 0)), False)
sketch6.addGeometry(Part.LineSegment(App.Vector(-29, 60, 0), App.Vector(-29, 78, 0)), False)
sketch6.addGeometry(Part.LineSegment(App.Vector(-29, 78, 0), App.Vector(-11, 78, 0)), False)
sketch6.addGeometry(Part.LineSegment(App.Vector(-11, 78, 0), App.Vector(-11, 60, 0)), False)
sketch6.addGeometry(Part.LineSegment(App.Vector(29, 60, 0), App.Vector(11, 60, 0)), False)
sketch6.addGeometry(Part.LineSegment(App.Vector(11, 60, 0), App.Vector(11, 78, 0)), False)
sketch6.addGeometry(Part.LineSegment(App.Vector(11, 78, 0), App.Vector(29, 78, 0)), False)
sketch6.addGeometry(Part.LineSegment(App.Vector(29, 78, 0), App.Vector(29, 60, 0)), False)
sketch6.addConstraint(Sketcher.Constraint("Coincident", 0, 2, 1, 1))
sketch6.addConstraint(Sketcher.Constraint("Coincident", 1, 2, 2, 1))
sketch6.addConstraint(Sketcher.Constraint("Coincident", 2, 2, 3, 1))
sketch6.addConstraint(Sketcher.Constraint("Coincident", 3, 2, 0, 1))
sketch6.addConstraint(Sketcher.Constraint("Coincident", 4, 2, 5, 1))
sketch6.addConstraint(Sketcher.Constraint("Coincident", 5, 2, 6, 1))
sketch6.addConstraint(Sketcher.Constraint("Coincident", 6, 2, 7, 1))
sketch6.addConstraint(Sketcher.Constraint("Coincident", 7, 2, 4, 1))
sketch6.addConstraint(Sketcher.Constraint("Horizontal", 0))
sketch6.addConstraint(Sketcher.Constraint("Vertical", 1))
sketch6.addConstraint(Sketcher.Constraint("Horizontal", 2))
sketch6.addConstraint(Sketcher.Constraint("Vertical", 3))
sketch6.addConstraint(Sketcher.Constraint("Horizontal", 4))
sketch6.addConstraint(Sketcher.Constraint("Vertical", 5))
sketch6.addConstraint(Sketcher.Constraint("Horizontal", 6))
sketch6.addConstraint(Sketcher.Constraint("Vertical", 7))
sketch6.addConstraint(Sketcher.Constraint("Horizontal", 3, 2, 4, 2))
sketch6.addConstraint(Sketcher.Constraint("Horizontal", 2, 2, 5, 2))
sketch6.addConstraint(Sketcher.Constraint("DistanceY", -1, 1, 0, 2, 60.4))
sketch6.addConstraint(Sketcher.Constraint("DistanceX", 4, 2, 4, 1, 18.024778))
sketch6.addConstraint(Sketcher.Constraint("DistanceX", 0, 2, 0, 1, 17.952716))
sketch6.addConstraint(Sketcher.Constraint("DistanceY", 1, 1, 1, 2, 17.977517))
sketch6.addConstraint(Sketcher.Constraint("DistanceX", 0, 2, -1, 1, 29.076358))
sketch6.addConstraint(Sketcher.Constraint("DistanceX", 1, 2, 6, 2, 58.173381))
pocket3 = body.newObject("PartDesign::Pocket", "Pocket002")
pocket3.Profile = sketch6
pocket3.Length = 2
pocket3.Reversed = True

# Sketch on YZ plane
sketch7 = body.newObject("Sketcher::SketchObject", "Sketch006")
sketch7.AttachmentSupport = (doc.getObject("YZ_Plane"), [""])
sketch7.MapMode = "FlatFace"
sketch7.AttachmentOffset = App.Placement(App.Vector(0, 0, 47), App.Rotation())
sketch7.addGeometry(Part.LineSegment(App.Vector(29.1, 76.3, 0), App.Vector(11.1, 76.3, 0)), False)
sketch7.addGeometry(Part.LineSegment(App.Vector(11.1, 76.3, 0), App.Vector(11.1, 78.4, 0)), False)
sketch7.addGeometry(Part.LineSegment(App.Vector(11.1, 78.4, 0), App.Vector(29.1, 78.4, 0)), False)
sketch7.addGeometry(Part.LineSegment(App.Vector(29.1, 78.4, 0), App.Vector(29.1, 76.3, 0)), False)
sketch7.addGeometry(Part.LineSegment(App.Vector(-11.1, 76.3, 0), App.Vector(-29.1, 76.3, 0)), False)
sketch7.addGeometry(Part.LineSegment(App.Vector(-29.1, 76.3, 0), App.Vector(-29.1, 78.4, 0)), False)
sketch7.addGeometry(Part.LineSegment(App.Vector(-29.1, 78.4, 0), App.Vector(-11.1, 78.4, 0)), False)
sketch7.addGeometry(Part.LineSegment(App.Vector(-11.1, 78.4, 0), App.Vector(-11.1, 76.3, 0)), False)
sketch7.addConstraint(Sketcher.Constraint("Coincident", 0, 2, 1, 1))
sketch7.addConstraint(Sketcher.Constraint("Coincident", 1, 2, 2, 1))
sketch7.addConstraint(Sketcher.Constraint("Coincident", 2, 2, 3, 1))
sketch7.addConstraint(Sketcher.Constraint("Coincident", 3, 2, 0, 1))
sketch7.addConstraint(Sketcher.Constraint("Coincident", 4, 2, 5, 1))
sketch7.addConstraint(Sketcher.Constraint("Coincident", 5, 2, 6, 1))
sketch7.addConstraint(Sketcher.Constraint("Coincident", 6, 2, 7, 1))
sketch7.addConstraint(Sketcher.Constraint("Coincident", 7, 2, 4, 1))
sketch7.addConstraint(Sketcher.Constraint("Horizontal", 0))
sketch7.addConstraint(Sketcher.Constraint("Vertical", 1))
sketch7.addConstraint(Sketcher.Constraint("Horizontal", 2))
sketch7.addConstraint(Sketcher.Constraint("Vertical", 3))
sketch7.addConstraint(Sketcher.Constraint("Horizontal", 4))
sketch7.addConstraint(Sketcher.Constraint("Vertical", 5))
sketch7.addConstraint(Sketcher.Constraint("Horizontal", 6))
sketch7.addConstraint(Sketcher.Constraint("Vertical", 7))
sketch7.addConstraint(Sketcher.Constraint("Horizontal", 3, 2, 4, 2))
sketch7.addConstraint(Sketcher.Constraint("Horizontal", 2, 2, 5, 2))
sketch7.addConstraint(Sketcher.Constraint("DistanceX", 0, 2, 0, 1, 18.024778))
sketch7.addConstraint(Sketcher.Constraint("DistanceX", 4, 2, 4, 1, 17.952716))
sketch7.addConstraint(Sketcher.Constraint("DistanceY", 1, 1, 1, 2, 2.045095))
sketch7.addConstraint(Sketcher.Constraint("DistanceY", -1, 1, 0, 2, 76.332422))
sketch7.addConstraint(Sketcher.Constraint("DistanceX", 4, 2, -1, 1, 29.076358))
sketch7.addConstraint(Sketcher.Constraint("DistanceX", 4, 2, 3, 2, 58.173381))
pocket4 = body.newObject("PartDesign::Pocket", "Pocket003")
pocket4.Profile = sketch7
pocket4.Length = 10
pocket4.Reversed = True

doc.recompute()
